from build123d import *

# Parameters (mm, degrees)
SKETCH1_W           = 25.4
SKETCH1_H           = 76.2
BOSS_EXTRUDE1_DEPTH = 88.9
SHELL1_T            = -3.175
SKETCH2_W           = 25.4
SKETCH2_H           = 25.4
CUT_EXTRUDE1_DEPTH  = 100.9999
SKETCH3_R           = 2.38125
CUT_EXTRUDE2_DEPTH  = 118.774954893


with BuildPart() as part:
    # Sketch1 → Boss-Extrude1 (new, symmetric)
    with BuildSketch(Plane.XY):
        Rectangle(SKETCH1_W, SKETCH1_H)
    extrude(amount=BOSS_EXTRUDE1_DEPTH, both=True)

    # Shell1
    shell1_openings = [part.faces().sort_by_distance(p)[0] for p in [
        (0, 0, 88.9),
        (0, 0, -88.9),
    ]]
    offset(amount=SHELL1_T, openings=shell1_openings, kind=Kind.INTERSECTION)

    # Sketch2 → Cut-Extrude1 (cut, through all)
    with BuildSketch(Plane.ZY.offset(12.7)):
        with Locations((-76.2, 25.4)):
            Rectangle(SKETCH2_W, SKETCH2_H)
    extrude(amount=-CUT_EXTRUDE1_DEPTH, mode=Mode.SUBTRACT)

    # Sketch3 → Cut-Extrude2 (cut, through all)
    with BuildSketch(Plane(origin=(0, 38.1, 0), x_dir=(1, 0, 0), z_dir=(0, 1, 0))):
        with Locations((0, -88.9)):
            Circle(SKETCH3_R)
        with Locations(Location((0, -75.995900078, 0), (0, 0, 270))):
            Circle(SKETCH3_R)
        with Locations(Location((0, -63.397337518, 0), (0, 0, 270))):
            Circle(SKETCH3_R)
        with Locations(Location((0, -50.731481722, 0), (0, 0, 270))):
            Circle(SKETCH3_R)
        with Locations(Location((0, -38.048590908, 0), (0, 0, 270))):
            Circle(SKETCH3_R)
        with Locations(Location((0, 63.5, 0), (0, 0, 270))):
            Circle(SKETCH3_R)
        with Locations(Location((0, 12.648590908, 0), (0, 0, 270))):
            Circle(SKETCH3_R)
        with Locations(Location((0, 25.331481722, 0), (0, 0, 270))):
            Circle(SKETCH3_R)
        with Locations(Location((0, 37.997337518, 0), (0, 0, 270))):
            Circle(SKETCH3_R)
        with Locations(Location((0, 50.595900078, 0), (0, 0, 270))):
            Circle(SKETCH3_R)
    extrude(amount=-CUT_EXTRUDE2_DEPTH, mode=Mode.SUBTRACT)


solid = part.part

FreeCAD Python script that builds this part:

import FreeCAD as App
import Part
import Sketcher
from FreeCAD import Vector
Q = App.Units.Quantity


def faces_at(feature, points):
    """Names of the faces that lie closest to the given points."""
    faces = feature.Shape.Faces
    near = lambda p: min(range(len(faces)), key=lambda i: faces[i].distToShape(Part.Vertex(*p))[0])
    return sorted({f"Face{near(p) + 1}" for p in points})

doc = App.newDocument("Part")
params = doc.addObject("Spreadsheet::Sheet", "Params")
for row, (alias, value) in enumerate([
    ("sketch1_width", "1 in"),
    ("sketch1_height", "3 in"),
    ("pad1_length", "7 in"),
    ("thickness_wall", "0.125 in"),
    ("sketch2_width", "1 in"),
    ("sketch3_diameter", "0.1875 in"),
], start=1):
    params.set(f"A{row}", alias)
    params.set(f"B{row}", "=" + value)
    params.setAlias(f"B{row}", alias)

body = doc.addObject("PartDesign::Body", "Body")

# Sketch on XY plane
sketch1 = doc.addObject("Sketcher::SketchObject", "Sketch")
body.addObject(sketch1)
sketch1.AttachmentSupport = (doc.XY_Plane, [""])
sketch1.MapMode = "FlatFace"
sketch1.addGeometry([
    Part.LineSegment(Vector(-13, 38, 0), Vector(-13, -38, 0)),
    Part.LineSegment(Vector(-13, -38, 0), Vector(13, -38, 0)),
    Part.LineSegment(Vector(13, -38, 0), Vector(13, 38, 0)),
    Part.LineSegment(Vector(13, 38, 0), Vector(-13, 38, 0)),
], False)
sketch1.addConstraint([
    Sketcher.Constraint("Coincident", 0, 2, 1, 1),
    Sketcher.Constraint("Coincident", 1, 2, 2, 1),
    Sketcher.Constraint("Coincident", 2, 2, 3, 1),
    Sketcher.Constraint("Coincident", 3, 2, 0, 1),
    Sketcher.Constraint("Vertical", 0),
    Sketcher.Constraint("Horizontal", 1),
    Sketcher.Constraint("Vertical", 2),
    Sketcher.Constraint("Horizontal", 3),
    Sketcher.Constraint("Symmetric", 0, 2, 2, 2, -1, 1),
    Sketcher.Constraint("DistanceX", 1, 1, 1, 2, Q("1 in")),
    Sketcher.Constraint("DistanceY", 0, 2, 0, 1, Q("3 in")),
])
sketch1.setExpression("Constraints[9]", "Params.sketch1_width")
sketch1.setExpression("Constraints[10]", "Params.sketch1_height")
pad1 = doc.addObject("PartDesign::Pad", "Pad")
body.addObject(pad1)
pad1.Profile = sketch1
pad1.setExpression("Length", "Params.pad1_length")
pad1.Midplane = True
doc.recompute()

thickness = doc.addObject("PartDesign::Thickness", "Thickness")
body.addObject(thickness)
thickness.Base = (pad1, faces_at(pad1, [(0, 0, 88.9), (0, 0, -88.9)]))
thickness.setExpression("Value", "Params.thickness_wall")
thickness.Reversed = True
thickness.Join = "Intersection"

# Sketch on YZ plane
sketch2 = doc.addObject("Sketcher::SketchObject", "Sketch001")
body.addObject(sketch2)
sketch2.AttachmentSupport = (doc.YZ_Plane, [""])
sketch2.MapMode = "FlatFace"
sketch2.AttachmentOffset = App.Placement(Vector(0, 0, -0.5 * 25.4), App.Rotation())
sketch2.addGeometry([
    Part.LineSegment(Vector(38, -89, 0), Vector(13, -89, 0)),
    Part.LineSegment(Vector(13, -89, 0), Vector(13, -64, 0)),
    Part.LineSegment(Vector(13, -64, 0), Vector(38, -64, 0)),
    Part.LineSegment(Vector(38, -64, 0), Vector(38, -89, 0)),
], False)
sketch2.addConstraint([
    Sketcher.Constraint("Coincident", 0, 2, 1, 1),
    Sketcher.Constraint("Coincident", 1, 2, 2, 1),
    Sketcher.Constraint("Coincident", 2, 2, 3, 1),
    Sketcher.Constraint("Coincident", 3, 2, 0, 1),
    Sketcher.Constraint("Horizontal", 0),
    Sketcher.Constraint("Vertical", 1),
    Sketcher.Constraint("Horizontal", 2),
    Sketcher.Constraint("Vertical", 3),
    Sketcher.Constraint("Equal", 2, 1),
    Sketcher.Constraint("DistanceX", 0, 2, 0, 1, Q("1 in")),
    Sketcher.Constraint("DistanceX", -1, 1, 0, 2, Q("0.5 in")),
    Sketcher.Constraint("DistanceY", 0, 2, -1, 1, Q("3.5 in")),
])
sketch2.setExpression("Constraints[9]", "Params.sketch2_width")
pocket1 = doc.addObject("PartDesign::Pocket", "Pocket")
body.addObject(pocket1)
pocket1.Profile = sketch2
pocket1.Type = "ThroughAll"
pocket1.Reversed = True

# Sketch on XZ plane
sketch3 = doc.addObject("Sketcher::SketchObject", "Sketch002")
body.addObject(sketch3)
sketch3.AttachmentSupport = (doc.XZ_Plane, [""])
sketch3.MapMode = "FlatFace"
sketch3.AttachmentOffset = App.Placement(Vector(0, 0, -1.5 * 25.4), App.Rotation())
sketch3.addGeometry([
    Part.Circle(Vector(0, 88.9, 0), Vector(0, 0, 1), 2.4),  # 0
    Part.Circle(Vector(0, 76, 0), Vector(0, 0, 1), 2.4),  # 1
    Part.Circle(Vector(0, 63.4, 0), Vector(0, 0, 1), 2.4),  # 2
    Part.Circle(Vector(0, 50.7, 0), Vector(0, 0, 1), 2.4),  # 3
    Part.Circle(Vector(0, 38, 0), Vector(0, 0, 1), 2.4),  # 4
    Part.Circle(Vector(0, -63.5, 0), Vector(0, 0, 1), 2.4),  # 5
    Part.Circle(Vector(0, -12.6, 0), Vector(0, 0, 1), 2.4),  # 6
    Part.Circle(Vector(0, -25.3, 0), Vector(0, 0, 1), 2.4),  # 7
    Part.Circle(Vector(0, -38, 0), Vector(0, 0, 1), 2.4),  # 8
    Part.Circle(Vector(0, -50.6, 0), Vector(0, 0, 1), 2.4),  # 9
], False)
sketch3.addConstraint([
    Sketcher.Constraint("Equal", 0, 1),
    Sketcher.Constraint("Equal", 1, 2),
    Sketcher.Constraint("Equal", 2, 3),
    Sketcher.Constraint("Equal", 3, 4),
    Sketcher.Constraint("Equal", 4, 5),
    Sketcher.Constraint("Equal", 5, 6),
    Sketcher.Constraint("Equal", 6, 7),
    Sketcher.Constraint("Equal", 7, 8),
    Sketcher.Constraint("Equal", 8, 9),
    Sketcher.Constraint("PointOnObject", 0, 3, -2),
    Sketcher.Constraint("PointOnObject", 1, 3, -2),
    Sketcher.Constraint("PointOnObject", 2, 3, -2),
    Sketcher.Constraint("PointOnObject", 3, 3, -2),
    Sketcher.Constraint("PointOnObject", 4, 3, -2),
    Sketcher.Constraint("PointOnObject", 5, 3, -2),
    Sketcher.Constraint("PointOnObject", 6, 3, -2),
    Sketcher.Constraint("PointOnObject", 7, 3, -2),
    Sketcher.Constraint("PointOnObject", 8, 3, -2),
    Sketcher.Constraint("PointOnObject", 9, 3, -2),
    Sketcher.Constraint("Diameter", 0, Q("0.1875 in")),
    Sketcher.Constraint("DistanceY", 5, 3, 0, 3, Q("6 in")),
    Sketcher.Constraint("DistanceY", -1, 1, 0, 3, Q("3.5 in")),
    Sketcher.Constraint("DistanceY", -1, 1, 1, 3, 75.9959),
    Sketcher.Constraint("DistanceY", 9, 3, -1, 1, 50.5959),
    Sketcher.Constraint("DistanceY", -1, 1, 3, 3, 50.731482),
    Sketcher.Constraint("DistanceY", -1, 1, 4, 3, 38.048591),
    Sketcher.Constraint("DistanceY", 6, 3, -1, 1, 12.648591),
    Sketcher.Constraint("DistanceY", 7, 3, -1, 1, 25.331482),
    Sketcher.Constraint("DistanceY", 6, 3, 2, 3, 76.045928),
    Sketcher.Constraint("DistanceY", 8, 3, 4, 3, 76.045928),
])
sketch3.setExpression("Constraints[19]", "Params.sketch3_diameter")
pocket2 = doc.addObject("PartDesign::Pocket", "Pocket001")
body.addObject(pocket2)
pocket2.Profile = sketch3
pocket2.Type = "ThroughAll"
pocket2.Reversed = True

doc.recompute()
